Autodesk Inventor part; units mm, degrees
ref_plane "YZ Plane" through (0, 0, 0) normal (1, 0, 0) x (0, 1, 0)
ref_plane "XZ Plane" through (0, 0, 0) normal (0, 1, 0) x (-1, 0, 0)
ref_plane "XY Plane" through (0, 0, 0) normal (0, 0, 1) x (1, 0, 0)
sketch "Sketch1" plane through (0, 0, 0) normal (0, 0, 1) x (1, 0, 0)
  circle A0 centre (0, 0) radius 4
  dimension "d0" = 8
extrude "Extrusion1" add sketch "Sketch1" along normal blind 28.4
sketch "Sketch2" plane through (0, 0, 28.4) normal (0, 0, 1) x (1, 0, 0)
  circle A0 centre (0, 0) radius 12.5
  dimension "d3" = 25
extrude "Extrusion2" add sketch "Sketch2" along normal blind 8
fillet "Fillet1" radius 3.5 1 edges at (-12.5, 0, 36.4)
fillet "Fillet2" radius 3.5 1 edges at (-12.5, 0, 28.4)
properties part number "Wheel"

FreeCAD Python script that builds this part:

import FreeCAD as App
import Part
import Sketcher
from FreeCAD import Vector


def edges_at(feature, points):
    """Names of the edges that pass closest to the given points."""
    edges = feature.Shape.Edges
    near = lambda p: min(range(len(edges)), key=lambda i: edges[i].distToShape(Part.Vertex(*p))[0])
    return sorted({f"Edge{near(p) + 1}" for p in points})

doc = App.newDocument("Part")
body = doc.addObject("PartDesign::Body", "Body")

# Sketch on XY plane
sketch1 = doc.addObject("Sketcher::SketchObject", "Sketch")
body.addObject(sketch1)
sketch1.AttachmentSupport = (doc.XY_Plane, [""])
sketch1.MapMode = "FlatFace"
sketch1.addGeometry(Part.Circle(Vector(0, 0, 0), Vector(0, 0, 1), 4), False)
sketch1.addConstraint([
    Sketcher.Constraint("Coincident", 0, 3, -1, 1),
    Sketcher.Constraint("Diameter", 0, 8.0),
])
pad1 = doc.addObject("PartDesign::Pad", "Pad")
body.addObject(pad1)
pad1.Profile = sketch1
pad1.Length = 28.4

# Sketch on XY plane
sketch2 = doc.addObject("Sketcher::SketchObject", "Sketch001")
body.addObject(sketch2)
sketch2.AttachmentSupport = (doc.XY_Plane, [""])
sketch2.MapMode = "FlatFace"
sketch2.AttachmentOffset = App.Placement(Vector(0, 0, 28.4), App.Rotation())
sketch2.addGeometry(Part.Circle(Vector(0, 0, 0), Vector(0, 0, 1), 12), False)
sketch2.addConstraint([
    Sketcher.Constraint("Coincident", 0, 3, -1, 1),
    Sketcher.Constraint("Diameter", 0, 25.0),
])
pad2 = doc.addObject("PartDesign::Pad", "Pad001")
body.addObject(pad2)
pad2.Profile = sketch2
pad2.Length = 8
doc.recompute()

fillet = doc.addObject("PartDesign::Fillet", "Fillet")
body.addObject(fillet)
fillet.Base = (pad2, edges_at(pad2, [(-12.5, 0, 36.4)]))
fillet.Radius = 3.5
doc.recompute()

fillet2 = doc.addObject("PartDesign::Fillet", "Fillet001")
body.addObject(fillet2)
fillet2.Base = (fillet, edges_at(fillet, [(-12.5, 0, 28.4)]))
fillet2.Radius = 3.5

doc.recompute()
